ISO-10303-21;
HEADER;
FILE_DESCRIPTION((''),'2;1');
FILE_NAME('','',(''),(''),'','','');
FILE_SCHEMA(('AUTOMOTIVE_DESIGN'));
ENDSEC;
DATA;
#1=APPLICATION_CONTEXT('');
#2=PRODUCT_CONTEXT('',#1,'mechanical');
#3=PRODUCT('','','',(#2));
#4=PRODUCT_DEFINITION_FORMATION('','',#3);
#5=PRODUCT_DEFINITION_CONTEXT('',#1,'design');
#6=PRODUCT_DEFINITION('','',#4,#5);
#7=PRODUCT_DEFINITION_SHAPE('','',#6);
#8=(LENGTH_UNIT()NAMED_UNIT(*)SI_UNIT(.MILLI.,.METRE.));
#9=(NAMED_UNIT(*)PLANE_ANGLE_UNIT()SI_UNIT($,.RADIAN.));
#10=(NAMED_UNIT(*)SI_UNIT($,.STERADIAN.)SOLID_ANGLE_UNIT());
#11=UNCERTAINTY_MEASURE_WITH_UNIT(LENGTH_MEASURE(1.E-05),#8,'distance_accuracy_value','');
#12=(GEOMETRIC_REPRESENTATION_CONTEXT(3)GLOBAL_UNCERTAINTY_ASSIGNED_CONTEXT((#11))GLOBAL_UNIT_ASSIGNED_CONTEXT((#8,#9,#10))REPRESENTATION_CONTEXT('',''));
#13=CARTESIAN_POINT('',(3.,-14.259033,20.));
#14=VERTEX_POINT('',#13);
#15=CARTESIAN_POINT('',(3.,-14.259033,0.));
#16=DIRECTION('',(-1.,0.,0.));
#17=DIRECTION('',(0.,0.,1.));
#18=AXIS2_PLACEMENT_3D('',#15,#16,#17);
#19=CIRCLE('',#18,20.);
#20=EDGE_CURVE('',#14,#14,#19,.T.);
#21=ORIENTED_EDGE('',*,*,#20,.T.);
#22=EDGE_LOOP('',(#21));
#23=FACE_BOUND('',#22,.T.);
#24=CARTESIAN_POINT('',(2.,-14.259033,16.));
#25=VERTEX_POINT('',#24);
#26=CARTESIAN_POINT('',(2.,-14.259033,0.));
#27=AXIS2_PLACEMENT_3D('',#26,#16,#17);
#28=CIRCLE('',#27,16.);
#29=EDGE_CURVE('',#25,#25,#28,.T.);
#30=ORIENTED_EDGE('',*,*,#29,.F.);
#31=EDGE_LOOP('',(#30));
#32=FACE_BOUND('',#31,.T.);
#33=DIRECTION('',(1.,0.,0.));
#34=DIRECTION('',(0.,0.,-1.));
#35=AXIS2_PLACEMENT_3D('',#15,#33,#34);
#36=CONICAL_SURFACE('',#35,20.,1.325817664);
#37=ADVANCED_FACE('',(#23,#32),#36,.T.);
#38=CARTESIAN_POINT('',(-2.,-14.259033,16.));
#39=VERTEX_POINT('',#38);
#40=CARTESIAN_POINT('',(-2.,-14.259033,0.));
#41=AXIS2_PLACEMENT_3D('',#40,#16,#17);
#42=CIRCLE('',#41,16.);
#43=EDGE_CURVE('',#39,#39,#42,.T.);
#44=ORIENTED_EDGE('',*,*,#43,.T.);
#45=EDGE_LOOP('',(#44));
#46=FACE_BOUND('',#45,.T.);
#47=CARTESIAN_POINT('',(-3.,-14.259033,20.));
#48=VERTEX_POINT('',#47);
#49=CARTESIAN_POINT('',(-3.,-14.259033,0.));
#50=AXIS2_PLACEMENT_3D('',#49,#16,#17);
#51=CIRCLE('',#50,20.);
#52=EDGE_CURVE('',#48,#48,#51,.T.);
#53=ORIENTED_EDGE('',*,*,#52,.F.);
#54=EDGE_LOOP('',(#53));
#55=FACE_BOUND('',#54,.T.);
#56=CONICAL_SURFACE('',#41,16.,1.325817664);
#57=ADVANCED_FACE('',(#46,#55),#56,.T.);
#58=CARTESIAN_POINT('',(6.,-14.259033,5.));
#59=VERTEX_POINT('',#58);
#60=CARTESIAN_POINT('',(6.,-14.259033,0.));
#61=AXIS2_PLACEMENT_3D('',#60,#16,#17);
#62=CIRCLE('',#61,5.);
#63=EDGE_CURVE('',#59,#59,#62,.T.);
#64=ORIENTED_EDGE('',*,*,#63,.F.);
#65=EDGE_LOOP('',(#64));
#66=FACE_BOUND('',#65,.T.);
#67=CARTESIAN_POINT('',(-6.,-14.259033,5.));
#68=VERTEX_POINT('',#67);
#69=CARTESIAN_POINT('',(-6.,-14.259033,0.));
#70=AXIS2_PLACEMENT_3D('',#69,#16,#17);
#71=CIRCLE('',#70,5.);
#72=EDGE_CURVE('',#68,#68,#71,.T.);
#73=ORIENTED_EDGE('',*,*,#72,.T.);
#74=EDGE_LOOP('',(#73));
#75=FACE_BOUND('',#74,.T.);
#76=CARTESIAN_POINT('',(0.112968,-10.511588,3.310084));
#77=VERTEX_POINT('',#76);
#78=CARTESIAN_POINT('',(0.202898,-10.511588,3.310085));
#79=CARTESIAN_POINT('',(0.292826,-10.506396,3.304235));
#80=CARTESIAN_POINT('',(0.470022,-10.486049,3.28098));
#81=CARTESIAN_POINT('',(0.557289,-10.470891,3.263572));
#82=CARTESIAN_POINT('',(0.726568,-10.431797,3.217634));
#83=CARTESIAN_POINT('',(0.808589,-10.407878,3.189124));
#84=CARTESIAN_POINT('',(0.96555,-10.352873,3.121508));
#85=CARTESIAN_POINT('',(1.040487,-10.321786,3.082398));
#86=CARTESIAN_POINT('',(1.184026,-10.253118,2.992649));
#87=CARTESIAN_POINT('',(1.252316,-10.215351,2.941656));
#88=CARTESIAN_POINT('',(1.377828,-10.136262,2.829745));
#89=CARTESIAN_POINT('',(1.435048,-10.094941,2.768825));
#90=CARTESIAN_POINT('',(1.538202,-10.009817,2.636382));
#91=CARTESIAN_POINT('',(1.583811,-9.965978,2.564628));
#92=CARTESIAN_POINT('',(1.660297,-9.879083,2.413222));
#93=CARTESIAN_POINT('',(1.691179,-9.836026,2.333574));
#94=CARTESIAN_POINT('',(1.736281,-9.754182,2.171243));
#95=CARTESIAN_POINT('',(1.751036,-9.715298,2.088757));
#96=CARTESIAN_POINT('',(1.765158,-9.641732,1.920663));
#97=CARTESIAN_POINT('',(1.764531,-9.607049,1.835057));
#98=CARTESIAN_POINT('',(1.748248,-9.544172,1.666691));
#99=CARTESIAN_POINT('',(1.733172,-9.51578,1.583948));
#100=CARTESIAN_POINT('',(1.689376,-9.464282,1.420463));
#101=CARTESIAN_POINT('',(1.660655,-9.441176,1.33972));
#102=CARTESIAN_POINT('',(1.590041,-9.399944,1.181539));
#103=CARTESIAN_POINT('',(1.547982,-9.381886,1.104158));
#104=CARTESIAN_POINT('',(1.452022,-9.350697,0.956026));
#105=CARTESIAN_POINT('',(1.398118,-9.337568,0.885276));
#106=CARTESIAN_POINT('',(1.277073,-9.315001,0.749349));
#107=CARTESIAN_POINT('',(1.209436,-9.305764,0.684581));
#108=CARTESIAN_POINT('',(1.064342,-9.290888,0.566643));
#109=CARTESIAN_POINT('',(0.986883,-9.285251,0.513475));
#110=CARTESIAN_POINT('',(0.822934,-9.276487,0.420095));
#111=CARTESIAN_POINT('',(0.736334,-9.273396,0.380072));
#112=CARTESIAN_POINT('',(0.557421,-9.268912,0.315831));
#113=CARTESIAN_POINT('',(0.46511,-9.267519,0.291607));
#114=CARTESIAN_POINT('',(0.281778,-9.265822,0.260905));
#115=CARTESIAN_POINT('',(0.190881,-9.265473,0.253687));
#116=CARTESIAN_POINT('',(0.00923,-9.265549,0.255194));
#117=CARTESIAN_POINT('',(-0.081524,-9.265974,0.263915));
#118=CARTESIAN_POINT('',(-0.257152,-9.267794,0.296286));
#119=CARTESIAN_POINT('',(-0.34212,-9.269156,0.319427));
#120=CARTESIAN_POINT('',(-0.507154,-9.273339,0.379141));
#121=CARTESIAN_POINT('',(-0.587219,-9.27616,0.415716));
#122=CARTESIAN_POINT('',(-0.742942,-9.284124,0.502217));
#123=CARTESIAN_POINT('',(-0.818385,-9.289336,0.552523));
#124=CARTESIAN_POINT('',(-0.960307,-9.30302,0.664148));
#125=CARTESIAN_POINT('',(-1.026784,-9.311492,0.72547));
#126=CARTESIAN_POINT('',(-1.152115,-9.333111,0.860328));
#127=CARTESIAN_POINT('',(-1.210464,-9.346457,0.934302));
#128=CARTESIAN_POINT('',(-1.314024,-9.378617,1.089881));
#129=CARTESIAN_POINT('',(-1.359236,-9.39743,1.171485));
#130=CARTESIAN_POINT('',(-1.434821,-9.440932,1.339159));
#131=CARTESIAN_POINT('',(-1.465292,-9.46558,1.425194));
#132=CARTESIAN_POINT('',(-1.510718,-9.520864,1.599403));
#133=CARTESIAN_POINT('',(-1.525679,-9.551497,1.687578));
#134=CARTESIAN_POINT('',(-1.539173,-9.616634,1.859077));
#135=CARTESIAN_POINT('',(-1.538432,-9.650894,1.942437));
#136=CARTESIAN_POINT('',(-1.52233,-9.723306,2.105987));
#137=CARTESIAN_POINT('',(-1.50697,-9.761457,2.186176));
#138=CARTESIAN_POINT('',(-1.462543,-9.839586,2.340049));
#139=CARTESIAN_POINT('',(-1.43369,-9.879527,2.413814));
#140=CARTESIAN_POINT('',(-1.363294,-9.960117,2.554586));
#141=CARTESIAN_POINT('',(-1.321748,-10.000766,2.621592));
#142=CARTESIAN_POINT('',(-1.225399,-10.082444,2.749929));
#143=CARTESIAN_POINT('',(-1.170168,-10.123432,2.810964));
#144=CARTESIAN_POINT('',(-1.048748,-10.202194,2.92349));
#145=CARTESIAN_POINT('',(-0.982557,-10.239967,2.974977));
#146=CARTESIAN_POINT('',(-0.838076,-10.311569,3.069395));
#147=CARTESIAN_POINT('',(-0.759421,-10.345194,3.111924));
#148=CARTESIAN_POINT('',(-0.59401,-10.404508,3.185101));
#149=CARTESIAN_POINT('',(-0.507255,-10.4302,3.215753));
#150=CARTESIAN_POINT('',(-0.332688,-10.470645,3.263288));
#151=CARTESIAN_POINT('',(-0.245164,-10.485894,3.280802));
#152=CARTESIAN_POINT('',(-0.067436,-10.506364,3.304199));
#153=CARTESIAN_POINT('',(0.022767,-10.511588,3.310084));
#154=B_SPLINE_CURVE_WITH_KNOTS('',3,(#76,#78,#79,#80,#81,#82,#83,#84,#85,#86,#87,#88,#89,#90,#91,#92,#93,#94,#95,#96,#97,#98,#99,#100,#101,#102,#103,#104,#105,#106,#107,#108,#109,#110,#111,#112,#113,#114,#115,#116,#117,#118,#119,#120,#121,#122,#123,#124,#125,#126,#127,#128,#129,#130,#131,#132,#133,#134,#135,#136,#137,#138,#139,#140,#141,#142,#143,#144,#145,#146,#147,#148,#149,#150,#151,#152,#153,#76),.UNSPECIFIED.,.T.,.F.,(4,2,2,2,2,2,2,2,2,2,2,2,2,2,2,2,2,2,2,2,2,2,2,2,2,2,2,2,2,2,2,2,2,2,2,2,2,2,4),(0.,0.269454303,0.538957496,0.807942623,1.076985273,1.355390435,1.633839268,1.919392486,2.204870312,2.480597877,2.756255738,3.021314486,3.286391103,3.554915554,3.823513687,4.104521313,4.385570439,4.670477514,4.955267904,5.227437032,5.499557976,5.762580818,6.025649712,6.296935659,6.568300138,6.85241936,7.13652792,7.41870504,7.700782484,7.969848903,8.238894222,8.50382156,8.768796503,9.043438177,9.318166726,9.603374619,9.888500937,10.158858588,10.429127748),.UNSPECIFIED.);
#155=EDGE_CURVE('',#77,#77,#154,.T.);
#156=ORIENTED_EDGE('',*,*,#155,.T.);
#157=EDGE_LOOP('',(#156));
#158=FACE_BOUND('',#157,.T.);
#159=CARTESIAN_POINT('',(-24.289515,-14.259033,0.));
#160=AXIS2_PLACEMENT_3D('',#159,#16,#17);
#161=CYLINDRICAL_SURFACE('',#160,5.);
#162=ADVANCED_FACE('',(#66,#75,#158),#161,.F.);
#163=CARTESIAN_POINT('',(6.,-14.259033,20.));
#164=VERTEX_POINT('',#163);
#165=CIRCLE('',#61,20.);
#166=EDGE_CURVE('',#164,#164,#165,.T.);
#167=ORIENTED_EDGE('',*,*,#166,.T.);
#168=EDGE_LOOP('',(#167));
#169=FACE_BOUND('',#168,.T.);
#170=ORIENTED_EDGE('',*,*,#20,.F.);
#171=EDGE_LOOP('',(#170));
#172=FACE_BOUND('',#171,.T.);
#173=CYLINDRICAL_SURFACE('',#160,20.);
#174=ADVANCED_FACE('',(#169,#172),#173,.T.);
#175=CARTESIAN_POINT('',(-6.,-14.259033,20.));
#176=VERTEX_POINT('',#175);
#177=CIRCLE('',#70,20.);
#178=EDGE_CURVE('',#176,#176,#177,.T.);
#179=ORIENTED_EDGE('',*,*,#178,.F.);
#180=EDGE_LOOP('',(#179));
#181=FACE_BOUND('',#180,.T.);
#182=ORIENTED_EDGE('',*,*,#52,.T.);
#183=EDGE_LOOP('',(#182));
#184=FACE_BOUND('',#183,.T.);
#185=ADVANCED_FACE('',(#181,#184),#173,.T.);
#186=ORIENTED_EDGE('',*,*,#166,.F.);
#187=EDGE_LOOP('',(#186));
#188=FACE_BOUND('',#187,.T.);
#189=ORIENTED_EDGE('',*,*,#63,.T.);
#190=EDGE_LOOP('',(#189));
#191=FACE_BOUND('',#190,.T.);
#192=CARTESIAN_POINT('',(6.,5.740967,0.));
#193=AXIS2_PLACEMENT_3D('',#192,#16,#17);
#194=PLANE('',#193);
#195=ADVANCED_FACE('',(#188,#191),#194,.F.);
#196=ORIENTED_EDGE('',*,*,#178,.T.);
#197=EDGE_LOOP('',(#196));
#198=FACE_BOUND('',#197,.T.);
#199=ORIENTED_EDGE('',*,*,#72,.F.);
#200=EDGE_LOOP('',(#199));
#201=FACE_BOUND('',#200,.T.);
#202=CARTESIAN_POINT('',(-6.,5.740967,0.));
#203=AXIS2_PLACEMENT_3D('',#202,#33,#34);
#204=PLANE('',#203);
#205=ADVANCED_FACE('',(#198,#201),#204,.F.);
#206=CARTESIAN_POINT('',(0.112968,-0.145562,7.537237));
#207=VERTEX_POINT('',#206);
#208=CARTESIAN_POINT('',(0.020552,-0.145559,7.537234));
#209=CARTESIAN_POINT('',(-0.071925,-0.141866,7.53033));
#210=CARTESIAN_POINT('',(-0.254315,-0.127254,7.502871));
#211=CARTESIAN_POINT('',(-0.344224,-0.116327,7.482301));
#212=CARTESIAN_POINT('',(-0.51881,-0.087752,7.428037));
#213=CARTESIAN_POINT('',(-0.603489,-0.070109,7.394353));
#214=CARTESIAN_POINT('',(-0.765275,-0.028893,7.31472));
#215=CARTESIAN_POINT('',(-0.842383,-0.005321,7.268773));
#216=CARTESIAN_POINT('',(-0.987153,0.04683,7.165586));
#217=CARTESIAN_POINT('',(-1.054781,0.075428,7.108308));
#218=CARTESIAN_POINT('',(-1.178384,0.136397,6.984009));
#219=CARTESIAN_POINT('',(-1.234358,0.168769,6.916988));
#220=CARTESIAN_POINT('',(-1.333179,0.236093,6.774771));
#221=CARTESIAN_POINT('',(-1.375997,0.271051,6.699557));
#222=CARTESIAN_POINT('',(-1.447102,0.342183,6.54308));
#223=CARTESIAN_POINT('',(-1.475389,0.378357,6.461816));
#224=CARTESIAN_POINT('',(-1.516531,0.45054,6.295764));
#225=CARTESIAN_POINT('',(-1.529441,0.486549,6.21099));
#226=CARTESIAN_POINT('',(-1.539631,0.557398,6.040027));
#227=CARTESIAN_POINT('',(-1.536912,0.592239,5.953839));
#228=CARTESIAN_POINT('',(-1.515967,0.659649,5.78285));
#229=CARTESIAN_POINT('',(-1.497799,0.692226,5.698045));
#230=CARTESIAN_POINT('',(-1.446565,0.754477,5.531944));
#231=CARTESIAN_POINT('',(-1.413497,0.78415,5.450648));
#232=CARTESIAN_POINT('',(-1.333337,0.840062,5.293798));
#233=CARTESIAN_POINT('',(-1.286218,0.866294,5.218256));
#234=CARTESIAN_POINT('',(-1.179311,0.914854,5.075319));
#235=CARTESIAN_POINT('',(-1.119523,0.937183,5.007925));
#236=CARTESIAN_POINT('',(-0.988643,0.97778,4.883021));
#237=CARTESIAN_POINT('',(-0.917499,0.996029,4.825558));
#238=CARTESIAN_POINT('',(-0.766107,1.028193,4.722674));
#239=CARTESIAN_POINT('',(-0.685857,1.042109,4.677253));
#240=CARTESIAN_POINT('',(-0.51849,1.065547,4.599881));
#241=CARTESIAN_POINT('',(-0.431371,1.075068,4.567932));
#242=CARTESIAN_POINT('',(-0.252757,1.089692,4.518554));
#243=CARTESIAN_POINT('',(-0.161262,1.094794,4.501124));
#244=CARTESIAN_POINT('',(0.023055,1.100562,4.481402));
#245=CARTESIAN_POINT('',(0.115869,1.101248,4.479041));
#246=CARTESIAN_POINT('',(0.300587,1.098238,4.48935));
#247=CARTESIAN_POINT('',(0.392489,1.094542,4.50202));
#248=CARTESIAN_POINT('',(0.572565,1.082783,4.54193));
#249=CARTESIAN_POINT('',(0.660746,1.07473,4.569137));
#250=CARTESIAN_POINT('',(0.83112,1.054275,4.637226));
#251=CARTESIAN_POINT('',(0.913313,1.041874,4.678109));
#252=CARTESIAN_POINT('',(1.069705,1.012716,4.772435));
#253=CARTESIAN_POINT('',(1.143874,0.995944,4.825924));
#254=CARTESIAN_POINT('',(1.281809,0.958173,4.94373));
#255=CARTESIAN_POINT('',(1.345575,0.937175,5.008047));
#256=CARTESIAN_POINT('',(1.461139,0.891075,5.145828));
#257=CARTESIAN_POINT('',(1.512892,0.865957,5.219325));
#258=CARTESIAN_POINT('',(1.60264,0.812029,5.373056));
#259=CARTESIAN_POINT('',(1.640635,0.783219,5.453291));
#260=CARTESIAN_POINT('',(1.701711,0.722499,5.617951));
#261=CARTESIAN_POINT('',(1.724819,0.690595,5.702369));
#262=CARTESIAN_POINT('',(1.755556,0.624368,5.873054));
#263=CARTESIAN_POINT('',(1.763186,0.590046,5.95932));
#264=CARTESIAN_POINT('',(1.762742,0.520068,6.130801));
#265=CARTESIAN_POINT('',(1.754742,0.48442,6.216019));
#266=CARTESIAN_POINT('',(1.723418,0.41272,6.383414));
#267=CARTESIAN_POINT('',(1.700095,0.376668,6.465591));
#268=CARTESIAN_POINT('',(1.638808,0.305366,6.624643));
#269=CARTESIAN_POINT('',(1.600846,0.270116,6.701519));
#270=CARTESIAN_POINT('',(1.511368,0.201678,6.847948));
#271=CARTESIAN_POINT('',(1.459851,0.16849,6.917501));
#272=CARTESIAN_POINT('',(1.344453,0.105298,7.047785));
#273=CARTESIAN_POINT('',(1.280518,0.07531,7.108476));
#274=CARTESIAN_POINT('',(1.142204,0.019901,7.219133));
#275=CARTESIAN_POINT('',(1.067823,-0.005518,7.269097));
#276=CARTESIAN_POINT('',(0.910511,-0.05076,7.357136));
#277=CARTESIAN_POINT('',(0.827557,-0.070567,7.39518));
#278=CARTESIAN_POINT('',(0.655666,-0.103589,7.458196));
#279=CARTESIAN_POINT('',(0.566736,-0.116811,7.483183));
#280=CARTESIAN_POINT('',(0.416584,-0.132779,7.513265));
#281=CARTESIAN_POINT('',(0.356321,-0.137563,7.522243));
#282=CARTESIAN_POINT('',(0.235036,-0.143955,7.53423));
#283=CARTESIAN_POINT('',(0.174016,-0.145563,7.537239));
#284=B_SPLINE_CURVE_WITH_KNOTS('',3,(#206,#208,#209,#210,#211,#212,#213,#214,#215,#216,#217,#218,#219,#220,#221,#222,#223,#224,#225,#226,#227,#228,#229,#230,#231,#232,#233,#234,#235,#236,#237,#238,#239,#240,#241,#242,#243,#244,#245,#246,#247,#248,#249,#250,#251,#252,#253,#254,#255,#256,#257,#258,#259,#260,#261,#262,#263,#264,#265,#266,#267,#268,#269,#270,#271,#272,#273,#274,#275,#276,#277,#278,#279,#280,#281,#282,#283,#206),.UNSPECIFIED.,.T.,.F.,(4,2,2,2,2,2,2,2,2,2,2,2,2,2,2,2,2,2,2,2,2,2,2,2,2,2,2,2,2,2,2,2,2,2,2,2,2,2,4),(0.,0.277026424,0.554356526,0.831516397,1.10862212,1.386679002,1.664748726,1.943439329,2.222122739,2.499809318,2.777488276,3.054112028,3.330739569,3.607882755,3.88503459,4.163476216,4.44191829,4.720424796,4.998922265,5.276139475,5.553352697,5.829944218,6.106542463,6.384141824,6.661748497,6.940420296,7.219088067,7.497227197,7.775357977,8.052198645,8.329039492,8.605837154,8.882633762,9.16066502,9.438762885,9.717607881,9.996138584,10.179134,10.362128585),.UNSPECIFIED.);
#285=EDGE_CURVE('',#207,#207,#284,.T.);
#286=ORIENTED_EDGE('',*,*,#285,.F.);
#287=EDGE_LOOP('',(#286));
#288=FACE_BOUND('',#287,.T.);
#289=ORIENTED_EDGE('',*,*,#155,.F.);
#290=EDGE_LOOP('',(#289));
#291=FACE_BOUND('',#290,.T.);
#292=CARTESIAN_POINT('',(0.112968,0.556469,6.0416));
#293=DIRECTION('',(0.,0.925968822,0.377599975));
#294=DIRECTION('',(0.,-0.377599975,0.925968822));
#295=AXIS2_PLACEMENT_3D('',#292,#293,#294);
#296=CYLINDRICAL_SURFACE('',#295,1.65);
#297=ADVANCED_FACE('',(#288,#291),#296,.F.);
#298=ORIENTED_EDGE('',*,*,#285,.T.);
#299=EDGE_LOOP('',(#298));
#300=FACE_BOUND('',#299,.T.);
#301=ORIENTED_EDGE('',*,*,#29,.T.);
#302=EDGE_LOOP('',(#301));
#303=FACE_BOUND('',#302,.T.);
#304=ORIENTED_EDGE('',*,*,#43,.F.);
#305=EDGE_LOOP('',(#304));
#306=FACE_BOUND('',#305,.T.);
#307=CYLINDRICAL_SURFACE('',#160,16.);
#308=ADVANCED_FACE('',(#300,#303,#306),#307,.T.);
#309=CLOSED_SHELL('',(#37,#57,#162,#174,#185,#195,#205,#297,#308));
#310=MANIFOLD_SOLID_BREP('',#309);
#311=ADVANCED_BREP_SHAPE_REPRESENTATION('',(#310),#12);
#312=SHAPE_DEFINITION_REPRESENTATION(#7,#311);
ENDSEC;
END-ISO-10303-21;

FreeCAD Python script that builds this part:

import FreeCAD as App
import Part
import Sketcher
from FreeCAD import Vector


def add_polygon(sketch, points):
    """Adds a closed chain of lines whose ends are joined by coincident constraints."""
    first, n = sketch.GeometryCount, len(points)
    for a, b in zip(points, points[1:] + points[:1]):
        sketch.addGeometry(Part.LineSegment(App.Vector(*a, 0), App.Vector(*b, 0)), False)
    for i in range(n):
        sketch.addConstraint(Sketcher.Constraint("Coincident", first + i, 2, first + (i + 1) % n, 1))

doc = App.newDocument("Part")
params = doc.addObject("Spreadsheet::Sheet", "Params")
for row, (alias, value) in enumerate([
    ("sketch1_width", "4 mm"),
    ("sketch1_width2", "3 mm"),
    ("sketch1_width3", "12 mm"),
    ("sketch1_height", "15 mm"),
    ("revolution_angle", "360 deg"),
    ("sketch2_diameter", "3.3 mm"),
    ("hole_diameter", "3.3 mm"),
    ("hole_depth", "12 mm"),
], start=1):
    params.set(f"A{row}", alias)
    params.set(f"B{row}", "=" + value)
    params.setAlias(f"B{row}", alias)

body = doc.addObject("PartDesign::Body", "Body")

sketch1 = body.newObject("Sketcher::SketchObject", "Sketch")
sketch1.AttachmentSupport = (doc.getObject("XY_Plane"), [""])
sketch1.MapMode = "FlatFace"
add_polygon(sketch1, [(2, 1.7), (-2, 1.7), (-3, 5.7), (-6, 5.7), (-6, -9.3), (6, -9.3), (6, 5.7), (3, 5.7)])
sketch1.addGeometry(Part.LineSegment(Vector(-6, -14.3, 0), Vector(6, -14.3, 0)), True)
sketch1.addConstraint(Sketcher.Constraint("Horizontal", 0))
sketch1.addConstraint(Sketcher.Constraint("Horizontal", 2))
sketch1.addConstraint(Sketcher.Constraint("Vertical", 3))
sketch1.addConstraint(Sketcher.Constraint("Horizontal", 4))
sketch1.addConstraint(Sketcher.Constraint("Vertical", 5))
sketch1.addConstraint(Sketcher.Constraint("Horizontal", 6))
sketch1.addConstraint(Sketcher.Constraint("Horizontal", 8))
sketch1.addConstraint(Sketcher.Constraint("Symmetric", 2, 2, 5, 2, -2))
sketch1.addConstraint(Sketcher.Constraint("Vertical", 3, 2, 8, 1))
sketch1.addConstraint(Sketcher.Constraint("Vertical", 5, 2, 8, 2))
sketch1.addConstraint(Sketcher.Constraint("Equal", 2, 6))
sketch1.addConstraint(Sketcher.Constraint("Equal", 1, 7))
sketch1.addConstraint(Sketcher.Constraint("DistanceX", 0, 2, 0, 1, 4.0))
sketch1.addConstraint(Sketcher.Constraint("DistanceX", 2, 2, 2, 1, 3.0))
sketch1.addConstraint(Sketcher.Constraint("DistanceX", 4, 1, 4, 2, 12.0))
sketch1.addConstraint(Sketcher.Constraint("DistanceY", 3, 2, 3, 1, 15.0))
sketch1.addConstraint(Sketcher.Constraint("DistanceY", 0, 2, 1, 2, 4.0))
sketch1.addConstraint(Sketcher.Constraint("DistanceY", 8, 1, 3, 2, 5.0))
sketch1.addConstraint(Sketcher.Constraint("DistanceY", -1, 1, 0, 2, 1.740967))
sketch1.setExpression("Constraints[20]", "Params.sketch1_width")
sketch1.setExpression("Constraints[21]", "Params.sketch1_width2")
sketch1.setExpression("Constraints[22]", "Params.sketch1_width3")
sketch1.setExpression("Constraints[23]", "Params.sketch1_height")
revolution = body.newObject("PartDesign::Revolution", "Revolution")
revolution.Profile = sketch1
revolution.ReferenceAxis = (sketch1, ["Axis0"])
revolution.setExpression("Angle", "Params.revolution_angle")

sketch2 = body.newObject("Sketcher::SketchObject", "Sketch001")
sketch2.Placement = App.Placement(Vector(0, 2.589546, 1.055989), App.Rotation(Vector(0, -0.377599975, 0.925968822), Vector(1, 0, 0), Vector(0, 0.925968822, 0.377599975), "ZXY"))
sketch2.addGeometry(Part.Circle(Vector(5.4, 0.1, 0), Vector(0, 0, 1), 1.6), False)
sketch2.addConstraint(Sketcher.Constraint("Diameter", 0, 3.3))
sketch2.addConstraint(Sketcher.Constraint("DistanceX", -1, 1, 0, 3, 5.38421))
sketch2.addConstraint(Sketcher.Constraint("DistanceY", -1, 1, 0, 3, 0.112968))
sketch2.setExpression("Constraints[0]", "Params.sketch2_diameter")
doc.recompute()
hole = body.newObject("PartDesign::Hole", "Hole")
hole.Profile = sketch2
hole.ThreadType = "None"
hole.setExpression("Diameter", "Params.hole_diameter")
hole.DepthType = "Dimension"
hole.setExpression("Depth", "Params.hole_depth")
hole.DrillPoint = "Flat"

doc.recompute()
